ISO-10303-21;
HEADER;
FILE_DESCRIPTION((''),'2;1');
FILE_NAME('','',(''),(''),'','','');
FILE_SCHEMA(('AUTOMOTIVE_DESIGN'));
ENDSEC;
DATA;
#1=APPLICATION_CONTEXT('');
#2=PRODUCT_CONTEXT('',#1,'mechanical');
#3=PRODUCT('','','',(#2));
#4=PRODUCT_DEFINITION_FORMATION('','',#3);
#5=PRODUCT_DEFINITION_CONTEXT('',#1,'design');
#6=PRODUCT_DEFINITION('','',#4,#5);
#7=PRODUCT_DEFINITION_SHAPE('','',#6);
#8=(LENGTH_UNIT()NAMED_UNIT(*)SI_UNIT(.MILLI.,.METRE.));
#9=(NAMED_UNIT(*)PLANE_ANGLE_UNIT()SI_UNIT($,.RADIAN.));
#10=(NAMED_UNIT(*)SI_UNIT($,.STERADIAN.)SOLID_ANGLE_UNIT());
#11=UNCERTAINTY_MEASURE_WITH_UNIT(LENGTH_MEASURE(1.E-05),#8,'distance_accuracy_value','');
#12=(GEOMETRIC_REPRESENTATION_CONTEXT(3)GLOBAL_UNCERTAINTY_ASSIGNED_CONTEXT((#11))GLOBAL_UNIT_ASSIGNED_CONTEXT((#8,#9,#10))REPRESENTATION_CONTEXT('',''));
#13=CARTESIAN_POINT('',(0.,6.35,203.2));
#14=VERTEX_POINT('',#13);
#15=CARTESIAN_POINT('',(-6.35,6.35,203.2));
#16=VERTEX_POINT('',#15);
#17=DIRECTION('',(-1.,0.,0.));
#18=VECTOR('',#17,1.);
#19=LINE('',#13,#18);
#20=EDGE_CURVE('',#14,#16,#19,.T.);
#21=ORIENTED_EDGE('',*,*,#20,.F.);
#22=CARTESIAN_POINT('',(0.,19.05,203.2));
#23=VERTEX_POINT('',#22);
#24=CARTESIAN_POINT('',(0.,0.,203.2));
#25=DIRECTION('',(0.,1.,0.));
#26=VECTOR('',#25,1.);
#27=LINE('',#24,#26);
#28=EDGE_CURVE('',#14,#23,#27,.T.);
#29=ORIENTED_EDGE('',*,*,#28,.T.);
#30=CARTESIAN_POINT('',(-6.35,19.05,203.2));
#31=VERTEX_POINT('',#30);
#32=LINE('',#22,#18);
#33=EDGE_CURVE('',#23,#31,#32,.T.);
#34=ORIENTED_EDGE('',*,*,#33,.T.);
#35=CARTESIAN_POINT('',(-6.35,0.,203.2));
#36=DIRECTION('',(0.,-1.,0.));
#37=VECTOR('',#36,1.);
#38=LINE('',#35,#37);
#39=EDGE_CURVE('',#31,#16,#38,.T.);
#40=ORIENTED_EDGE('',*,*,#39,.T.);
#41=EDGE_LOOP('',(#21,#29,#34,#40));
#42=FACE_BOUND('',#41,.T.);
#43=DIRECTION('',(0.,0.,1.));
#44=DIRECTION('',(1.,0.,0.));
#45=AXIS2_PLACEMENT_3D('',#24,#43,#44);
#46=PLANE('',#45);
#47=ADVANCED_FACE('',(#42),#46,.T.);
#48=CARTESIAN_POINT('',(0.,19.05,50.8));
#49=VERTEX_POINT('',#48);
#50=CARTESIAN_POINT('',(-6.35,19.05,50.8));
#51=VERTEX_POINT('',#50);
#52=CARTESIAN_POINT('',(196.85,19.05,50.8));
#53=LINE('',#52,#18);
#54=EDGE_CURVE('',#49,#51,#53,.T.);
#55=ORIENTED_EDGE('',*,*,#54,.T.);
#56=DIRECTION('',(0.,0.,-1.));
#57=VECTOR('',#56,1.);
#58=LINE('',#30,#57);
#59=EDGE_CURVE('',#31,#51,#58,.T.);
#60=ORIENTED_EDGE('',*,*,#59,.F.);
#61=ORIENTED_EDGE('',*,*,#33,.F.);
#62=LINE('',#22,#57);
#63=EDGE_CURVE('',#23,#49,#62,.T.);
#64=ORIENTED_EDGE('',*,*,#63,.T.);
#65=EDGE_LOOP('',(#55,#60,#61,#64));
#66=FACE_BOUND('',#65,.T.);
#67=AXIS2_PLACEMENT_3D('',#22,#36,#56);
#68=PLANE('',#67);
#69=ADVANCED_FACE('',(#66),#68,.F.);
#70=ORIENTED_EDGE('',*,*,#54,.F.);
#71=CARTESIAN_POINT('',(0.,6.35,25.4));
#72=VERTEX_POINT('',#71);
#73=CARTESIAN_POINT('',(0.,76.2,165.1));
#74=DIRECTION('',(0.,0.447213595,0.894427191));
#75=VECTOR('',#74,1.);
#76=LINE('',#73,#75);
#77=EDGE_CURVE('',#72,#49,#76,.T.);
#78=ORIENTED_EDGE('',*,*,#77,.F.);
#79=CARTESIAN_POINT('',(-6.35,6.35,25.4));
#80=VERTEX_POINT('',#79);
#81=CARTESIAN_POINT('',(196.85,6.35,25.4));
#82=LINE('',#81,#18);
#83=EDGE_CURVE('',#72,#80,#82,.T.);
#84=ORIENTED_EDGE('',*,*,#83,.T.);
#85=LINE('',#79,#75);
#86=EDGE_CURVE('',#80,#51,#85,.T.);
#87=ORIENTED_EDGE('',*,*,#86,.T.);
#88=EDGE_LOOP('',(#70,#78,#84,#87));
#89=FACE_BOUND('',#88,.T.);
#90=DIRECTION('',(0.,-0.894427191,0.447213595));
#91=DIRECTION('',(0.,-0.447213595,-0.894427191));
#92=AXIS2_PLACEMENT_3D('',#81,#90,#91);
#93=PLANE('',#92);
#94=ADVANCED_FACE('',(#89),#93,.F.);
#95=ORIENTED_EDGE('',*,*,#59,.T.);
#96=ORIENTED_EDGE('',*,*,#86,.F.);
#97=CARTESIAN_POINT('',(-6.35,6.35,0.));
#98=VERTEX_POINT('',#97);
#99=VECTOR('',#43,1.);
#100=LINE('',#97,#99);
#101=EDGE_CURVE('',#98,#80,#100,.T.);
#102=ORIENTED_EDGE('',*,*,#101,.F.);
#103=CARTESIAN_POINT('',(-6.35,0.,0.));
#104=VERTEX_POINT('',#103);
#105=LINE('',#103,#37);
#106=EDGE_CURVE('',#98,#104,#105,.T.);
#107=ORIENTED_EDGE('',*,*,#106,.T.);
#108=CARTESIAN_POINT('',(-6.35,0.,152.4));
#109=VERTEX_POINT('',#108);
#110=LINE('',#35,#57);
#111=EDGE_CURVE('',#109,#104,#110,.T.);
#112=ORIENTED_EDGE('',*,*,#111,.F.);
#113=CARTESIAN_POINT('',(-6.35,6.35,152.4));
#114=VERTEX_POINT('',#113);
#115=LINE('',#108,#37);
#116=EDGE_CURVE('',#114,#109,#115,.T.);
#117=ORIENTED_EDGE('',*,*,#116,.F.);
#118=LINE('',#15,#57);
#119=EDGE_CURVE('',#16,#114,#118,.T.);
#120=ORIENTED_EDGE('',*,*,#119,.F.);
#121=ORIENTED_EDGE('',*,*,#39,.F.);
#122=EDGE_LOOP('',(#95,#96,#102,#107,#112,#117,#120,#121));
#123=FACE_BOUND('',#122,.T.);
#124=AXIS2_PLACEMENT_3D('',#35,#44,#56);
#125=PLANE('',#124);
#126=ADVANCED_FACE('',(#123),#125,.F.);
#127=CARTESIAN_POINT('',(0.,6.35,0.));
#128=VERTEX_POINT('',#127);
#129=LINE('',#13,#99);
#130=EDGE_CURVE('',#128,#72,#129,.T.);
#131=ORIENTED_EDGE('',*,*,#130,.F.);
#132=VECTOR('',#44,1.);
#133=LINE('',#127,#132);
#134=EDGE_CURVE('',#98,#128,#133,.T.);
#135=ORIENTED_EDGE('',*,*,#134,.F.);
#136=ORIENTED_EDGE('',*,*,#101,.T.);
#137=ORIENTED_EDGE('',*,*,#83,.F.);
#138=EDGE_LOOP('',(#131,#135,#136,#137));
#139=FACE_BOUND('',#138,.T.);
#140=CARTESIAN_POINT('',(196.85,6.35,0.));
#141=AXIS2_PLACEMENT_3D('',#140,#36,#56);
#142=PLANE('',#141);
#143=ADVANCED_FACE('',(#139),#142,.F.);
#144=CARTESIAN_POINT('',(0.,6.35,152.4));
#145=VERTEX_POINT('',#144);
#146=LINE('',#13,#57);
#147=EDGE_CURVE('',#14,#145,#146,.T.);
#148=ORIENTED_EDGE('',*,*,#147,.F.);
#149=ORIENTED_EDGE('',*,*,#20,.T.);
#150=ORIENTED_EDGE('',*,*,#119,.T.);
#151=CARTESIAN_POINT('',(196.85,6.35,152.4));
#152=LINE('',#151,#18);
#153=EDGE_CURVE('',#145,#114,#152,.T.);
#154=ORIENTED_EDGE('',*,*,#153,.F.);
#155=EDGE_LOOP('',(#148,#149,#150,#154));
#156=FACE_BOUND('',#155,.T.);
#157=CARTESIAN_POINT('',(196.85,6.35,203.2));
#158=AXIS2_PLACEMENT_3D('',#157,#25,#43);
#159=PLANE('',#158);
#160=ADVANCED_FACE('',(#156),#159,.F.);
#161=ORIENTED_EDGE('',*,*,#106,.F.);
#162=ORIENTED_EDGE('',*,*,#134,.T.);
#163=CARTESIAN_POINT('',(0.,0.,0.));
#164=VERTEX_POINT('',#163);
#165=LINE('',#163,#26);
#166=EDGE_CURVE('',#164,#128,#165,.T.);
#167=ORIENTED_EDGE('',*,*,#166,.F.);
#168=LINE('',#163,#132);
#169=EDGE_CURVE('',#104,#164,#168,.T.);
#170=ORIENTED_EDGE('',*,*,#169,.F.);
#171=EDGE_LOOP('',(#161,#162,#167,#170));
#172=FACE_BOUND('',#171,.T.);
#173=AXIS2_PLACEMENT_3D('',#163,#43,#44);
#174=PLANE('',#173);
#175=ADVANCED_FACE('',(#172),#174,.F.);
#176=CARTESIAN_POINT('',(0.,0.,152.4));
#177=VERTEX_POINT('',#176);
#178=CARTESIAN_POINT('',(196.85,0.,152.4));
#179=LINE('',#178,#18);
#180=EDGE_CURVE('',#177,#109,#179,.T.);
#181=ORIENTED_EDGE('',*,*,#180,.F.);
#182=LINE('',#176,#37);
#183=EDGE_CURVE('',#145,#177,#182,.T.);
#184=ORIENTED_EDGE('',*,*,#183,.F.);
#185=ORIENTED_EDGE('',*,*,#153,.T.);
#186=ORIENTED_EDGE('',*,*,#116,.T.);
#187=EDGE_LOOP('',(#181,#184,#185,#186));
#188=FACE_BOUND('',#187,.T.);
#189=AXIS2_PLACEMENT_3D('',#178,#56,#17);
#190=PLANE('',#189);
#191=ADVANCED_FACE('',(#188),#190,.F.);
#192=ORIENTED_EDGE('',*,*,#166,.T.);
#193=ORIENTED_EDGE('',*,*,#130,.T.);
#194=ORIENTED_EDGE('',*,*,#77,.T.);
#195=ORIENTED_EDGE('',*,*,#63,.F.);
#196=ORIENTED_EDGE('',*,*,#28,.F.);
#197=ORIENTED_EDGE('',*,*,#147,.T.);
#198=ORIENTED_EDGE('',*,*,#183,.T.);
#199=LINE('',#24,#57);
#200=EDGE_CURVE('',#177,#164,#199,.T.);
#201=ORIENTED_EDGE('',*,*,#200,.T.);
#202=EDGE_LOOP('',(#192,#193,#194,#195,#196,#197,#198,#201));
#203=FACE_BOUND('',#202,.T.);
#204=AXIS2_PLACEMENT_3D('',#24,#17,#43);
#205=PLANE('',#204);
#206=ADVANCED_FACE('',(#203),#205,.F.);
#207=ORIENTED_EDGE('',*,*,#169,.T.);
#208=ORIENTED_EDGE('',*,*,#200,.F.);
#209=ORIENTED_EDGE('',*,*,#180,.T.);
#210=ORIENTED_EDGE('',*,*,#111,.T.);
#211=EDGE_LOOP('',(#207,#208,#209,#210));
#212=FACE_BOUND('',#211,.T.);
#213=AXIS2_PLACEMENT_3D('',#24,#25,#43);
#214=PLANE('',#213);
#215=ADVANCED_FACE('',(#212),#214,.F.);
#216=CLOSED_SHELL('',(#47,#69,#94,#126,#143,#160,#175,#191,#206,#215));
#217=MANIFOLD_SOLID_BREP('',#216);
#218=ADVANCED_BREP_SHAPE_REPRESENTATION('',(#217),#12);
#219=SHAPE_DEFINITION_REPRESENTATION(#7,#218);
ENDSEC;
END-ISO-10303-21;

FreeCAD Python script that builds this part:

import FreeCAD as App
import Part
import Sketcher

V = App.Vector
Q = App.Units.Quantity

doc = App.newDocument("Part")
body = doc.addObject("PartDesign::Body", "Body")

# Sketch on XY plane
sketch1 = body.newObject("Sketcher::SketchObject", "Sketch")
sketch1.AttachmentSupport = (doc.getObject("XY_Plane"), [""])
sketch1.MapMode = "FlatFace"
sketch1.addGeometry([
    Part.LineSegment(V(-6.35, 19.05, 0), V(-6.35, 0, 0)),
    Part.LineSegment(V(-6.35, 0, 0), V(0, 0, 0)),
    Part.LineSegment(V(0, 0, 0), V(0, 19.05, 0)),
    Part.LineSegment(V(0, 19.05, 0), V(-6.35, 19.05, 0)),
], False)
sketch1.addConstraint([
    Sketcher.Constraint("Coincident", 0, 2, 1, 1),
    Sketcher.Constraint("Coincident", 1, 2, 2, 1),
    Sketcher.Constraint("Coincident", 2, 2, 3, 1),
    Sketcher.Constraint("Coincident", 3, 2, 0, 1),
    Sketcher.Constraint("Vertical", 0),
    Sketcher.Constraint("Horizontal", 1),
    Sketcher.Constraint("Vertical", 2),
    Sketcher.Constraint("Horizontal", 3),
    Sketcher.Constraint("Coincident", 1, 2, -1, 1),
    Sketcher.Constraint("DistanceX", 1, 1, 1, 2, Q("0.25 in")),
    Sketcher.Constraint("DistanceY", 0, 2, 0, 1, Q("0.75 in")),
])
pad1 = body.newObject("PartDesign::Pad", "Pad")
pad1.Profile = sketch1
pad1.Length = Q("8 in")

# Sketch on YZ plane
sketch2 = body.newObject("Sketcher::SketchObject", "Sketch001")
sketch2.AttachmentSupport = (doc.getObject("YZ_Plane"), [""])
sketch2.MapMode = "FlatFace"
sketch2.AttachmentOffset = App.Placement(V(0, 0, -0.25 * 25.4), App.Rotation())
sketch2.addGeometry([
    Part.LineSegment(V(6.35, 152.4, 0), V(0, 152.4, 0)),
    Part.LineSegment(V(0, 152.4, 0), V(0, 203.2, 0)),
    Part.LineSegment(V(0, 203.2, 0), V(6.35, 203.2, 0)),
    Part.LineSegment(V(6.35, 203.2, 0), V(6.35, 152.4, 0)),
], False)
sketch2.addConstraint([
    Sketcher.Constraint("Coincident", 0, 2, 1, 1),
    Sketcher.Constraint("Coincident", 1, 2, 2, 1),
    Sketcher.Constraint("Coincident", 2, 2, 3, 1),
    Sketcher.Constraint("Coincident", 3, 2, 0, 1),
    Sketcher.Constraint("Horizontal", 0),
    Sketcher.Constraint("Vertical", 1),
    Sketcher.Constraint("Horizontal", 2),
    Sketcher.Constraint("Vertical", 3),
    Sketcher.Constraint("PointOnObject", 0, 2, -2),
    Sketcher.Constraint("DistanceY", 1, 1, 1, 2, Q("2 in")),
    Sketcher.Constraint("DistanceY", -1, 1, 0, 2, Q("6 in")),
    Sketcher.Constraint("DistanceX", 0, 2, 0, 1, Q("0.25 in")),
])
pocket1 = body.newObject("PartDesign::Pocket", "Pocket")
pocket1.Profile = sketch2
pocket1.Length = Q("8 in")
pocket1.Reversed = True

# Sketch on YZ plane
sketch3 = body.newObject("Sketcher::SketchObject", "Sketch002")
sketch3.AttachmentSupport = (doc.getObject("YZ_Plane"), [""])
sketch3.MapMode = "FlatFace"
sketch3.AttachmentOffset = App.Placement(V(0, 0, -0.25 * 25.4), App.Rotation())
sketch3.addGeometry([
    Part.LineSegment(V(6.35, 0, 0), V(6.35, 25.4, 0)),
    Part.LineSegment(V(6.35, 25.4, 0), V(19.05, 50.8, 0)),
    Part.LineSegment(V(19.05, 50.8, 0), V(19.05, 0, 0)),
    Part.LineSegment(V(19.05, 0, 0), V(6.35, 0, 0)),
], False)
sketch3.addConstraint([
    Sketcher.Constraint("Coincident", 0, 2, 1, 1),
    Sketcher.Constraint("Coincident", 1, 2, 2, 1),
    Sketcher.Constraint("Coincident", 2, 2, 3, 1),
    Sketcher.Constraint("Coincident", 3, 2, 0, 1),
    Sketcher.Constraint("Vertical", 0),
    Sketcher.Constraint("Vertical", 2),
    Sketcher.Constraint("Horizontal", 3),
    Sketcher.Constraint("PointOnObject", 2, 2, -1),
    Sketcher.Constraint("DistanceY", 0, 1, 0, 2, Q("1 in")),
    Sketcher.Constraint("DistanceY", 2, 2, 2, 1, Q("2 in")),
    Sketcher.Constraint("DistanceX", 3, 2, 3, 1, Q("0.5 in")),
    Sketcher.Constraint("DistanceX", -1, 1, 0, 2, Q("0.25 in")),
])
pocket2 = body.newObject("PartDesign::Pocket", "Pocket001")
pocket2.Profile = sketch3
pocket2.Length = Q("8 in")
pocket2.Reversed = True

doc.recompute()
